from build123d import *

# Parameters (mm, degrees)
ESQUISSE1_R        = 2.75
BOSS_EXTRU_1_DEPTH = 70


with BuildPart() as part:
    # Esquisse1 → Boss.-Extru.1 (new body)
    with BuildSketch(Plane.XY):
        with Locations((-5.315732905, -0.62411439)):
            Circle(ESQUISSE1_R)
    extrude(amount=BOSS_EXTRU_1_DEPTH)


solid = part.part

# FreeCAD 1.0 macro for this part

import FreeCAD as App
import Part
import Sketcher
Q = App.Units.Quantity

doc = App.newDocument("Part")
body = doc.addObject("PartDesign::Body", "Body")

# Sketch on XY plane
sketch1 = doc.addObject("Sketcher::SketchObject", "Sketch")
body.addObject(sketch1)
sketch1.AttachmentSupport = (doc.XY_Plane, [""])
sketch1.MapMode = "FlatFace"
sketch1.addGeometry(Part.Circle(App.Vector(-5.3, -0.6, 0), App.Vector(0, 0, 1), 2.8), False)
sketch1.addConstraint([
    Sketcher.Constraint("Diameter", 0, Q("5.5 mm")),
    Sketcher.Constraint("DistanceX", 0, 3, -1, 1, Q("5.315733 mm")),
    Sketcher.Constraint("DistanceY", 0, 3, -1, 1, Q("0.624114 mm")),
])
pad1 = doc.addObject("PartDesign::Pad", "Pad")
body.addObject(pad1)
pad1.Profile = sketch1
pad1.Length = 70

doc.recompute()
